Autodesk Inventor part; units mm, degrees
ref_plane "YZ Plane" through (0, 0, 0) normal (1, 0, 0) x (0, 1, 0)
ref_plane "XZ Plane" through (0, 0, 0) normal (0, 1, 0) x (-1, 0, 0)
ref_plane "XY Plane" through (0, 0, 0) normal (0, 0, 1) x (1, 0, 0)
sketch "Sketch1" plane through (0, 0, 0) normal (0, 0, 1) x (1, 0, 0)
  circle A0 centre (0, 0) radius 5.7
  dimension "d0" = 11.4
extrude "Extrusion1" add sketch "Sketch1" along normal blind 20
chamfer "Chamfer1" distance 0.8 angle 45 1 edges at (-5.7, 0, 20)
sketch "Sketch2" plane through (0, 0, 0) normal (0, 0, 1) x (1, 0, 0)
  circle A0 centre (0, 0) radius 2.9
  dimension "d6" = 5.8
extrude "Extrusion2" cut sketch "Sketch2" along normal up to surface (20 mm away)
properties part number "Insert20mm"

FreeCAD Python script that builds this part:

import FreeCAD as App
import Part
import Sketcher
from FreeCAD import Vector
Q = App.Units.Quantity


def edges_at(feature, points):
    """Names of the edges that pass closest to the given points."""
    edges = feature.Shape.Edges
    near = lambda p: min(range(len(edges)), key=lambda i: edges[i].distToShape(Part.Vertex(*p))[0])
    return sorted({f"Edge{near(p) + 1}" for p in points})

doc = App.newDocument("Part")
body = doc.addObject("PartDesign::Body", "Body")

# Sketch on XY plane
sketch1 = doc.addObject("Sketcher::SketchObject", "Sketch")
body.addObject(sketch1)
sketch1.AttachmentSupport = (doc.XY_Plane, [""])
sketch1.MapMode = "FlatFace"
sketch1.addGeometry(Part.Circle(Vector(0, 0, 0), Vector(0, 0, 1), 6), False)
sketch1.addConstraint([
    Sketcher.Constraint("Coincident", 0, 3, -1, 1),
    Sketcher.Constraint("Diameter", 0, Q("11.4 mm")),
])
pad1 = doc.addObject("PartDesign::Pad", "Pad")
body.addObject(pad1)
pad1.Profile = sketch1
pad1.Length = 20
doc.recompute()

chamfer = doc.addObject("PartDesign::Chamfer", "Chamfer")
body.addObject(chamfer)
chamfer.Base = (pad1, edges_at(pad1, [(-5.7, 0, 20)]))
chamfer.Size = 0.8

# Sketch on XY plane
sketch2 = doc.addObject("Sketcher::SketchObject", "Sketch001")
body.addObject(sketch2)
sketch2.AttachmentSupport = (doc.XY_Plane, [""])
sketch2.MapMode = "FlatFace"
sketch2.addGeometry(Part.Circle(Vector(0, 0, 0), Vector(0, 0, 1), 2.9), False)
sketch2.addConstraint([
    Sketcher.Constraint("Coincident", 0, 3, -1, 1),
    Sketcher.Constraint("Diameter", 0, Q("5.8 mm")),
])
pocket1 = doc.addObject("PartDesign::Pocket", "Pocket")
body.addObject(pocket1)
pocket1.Profile = sketch2
pocket1.Length = 20
pocket1.Reversed = True

doc.recompute()
